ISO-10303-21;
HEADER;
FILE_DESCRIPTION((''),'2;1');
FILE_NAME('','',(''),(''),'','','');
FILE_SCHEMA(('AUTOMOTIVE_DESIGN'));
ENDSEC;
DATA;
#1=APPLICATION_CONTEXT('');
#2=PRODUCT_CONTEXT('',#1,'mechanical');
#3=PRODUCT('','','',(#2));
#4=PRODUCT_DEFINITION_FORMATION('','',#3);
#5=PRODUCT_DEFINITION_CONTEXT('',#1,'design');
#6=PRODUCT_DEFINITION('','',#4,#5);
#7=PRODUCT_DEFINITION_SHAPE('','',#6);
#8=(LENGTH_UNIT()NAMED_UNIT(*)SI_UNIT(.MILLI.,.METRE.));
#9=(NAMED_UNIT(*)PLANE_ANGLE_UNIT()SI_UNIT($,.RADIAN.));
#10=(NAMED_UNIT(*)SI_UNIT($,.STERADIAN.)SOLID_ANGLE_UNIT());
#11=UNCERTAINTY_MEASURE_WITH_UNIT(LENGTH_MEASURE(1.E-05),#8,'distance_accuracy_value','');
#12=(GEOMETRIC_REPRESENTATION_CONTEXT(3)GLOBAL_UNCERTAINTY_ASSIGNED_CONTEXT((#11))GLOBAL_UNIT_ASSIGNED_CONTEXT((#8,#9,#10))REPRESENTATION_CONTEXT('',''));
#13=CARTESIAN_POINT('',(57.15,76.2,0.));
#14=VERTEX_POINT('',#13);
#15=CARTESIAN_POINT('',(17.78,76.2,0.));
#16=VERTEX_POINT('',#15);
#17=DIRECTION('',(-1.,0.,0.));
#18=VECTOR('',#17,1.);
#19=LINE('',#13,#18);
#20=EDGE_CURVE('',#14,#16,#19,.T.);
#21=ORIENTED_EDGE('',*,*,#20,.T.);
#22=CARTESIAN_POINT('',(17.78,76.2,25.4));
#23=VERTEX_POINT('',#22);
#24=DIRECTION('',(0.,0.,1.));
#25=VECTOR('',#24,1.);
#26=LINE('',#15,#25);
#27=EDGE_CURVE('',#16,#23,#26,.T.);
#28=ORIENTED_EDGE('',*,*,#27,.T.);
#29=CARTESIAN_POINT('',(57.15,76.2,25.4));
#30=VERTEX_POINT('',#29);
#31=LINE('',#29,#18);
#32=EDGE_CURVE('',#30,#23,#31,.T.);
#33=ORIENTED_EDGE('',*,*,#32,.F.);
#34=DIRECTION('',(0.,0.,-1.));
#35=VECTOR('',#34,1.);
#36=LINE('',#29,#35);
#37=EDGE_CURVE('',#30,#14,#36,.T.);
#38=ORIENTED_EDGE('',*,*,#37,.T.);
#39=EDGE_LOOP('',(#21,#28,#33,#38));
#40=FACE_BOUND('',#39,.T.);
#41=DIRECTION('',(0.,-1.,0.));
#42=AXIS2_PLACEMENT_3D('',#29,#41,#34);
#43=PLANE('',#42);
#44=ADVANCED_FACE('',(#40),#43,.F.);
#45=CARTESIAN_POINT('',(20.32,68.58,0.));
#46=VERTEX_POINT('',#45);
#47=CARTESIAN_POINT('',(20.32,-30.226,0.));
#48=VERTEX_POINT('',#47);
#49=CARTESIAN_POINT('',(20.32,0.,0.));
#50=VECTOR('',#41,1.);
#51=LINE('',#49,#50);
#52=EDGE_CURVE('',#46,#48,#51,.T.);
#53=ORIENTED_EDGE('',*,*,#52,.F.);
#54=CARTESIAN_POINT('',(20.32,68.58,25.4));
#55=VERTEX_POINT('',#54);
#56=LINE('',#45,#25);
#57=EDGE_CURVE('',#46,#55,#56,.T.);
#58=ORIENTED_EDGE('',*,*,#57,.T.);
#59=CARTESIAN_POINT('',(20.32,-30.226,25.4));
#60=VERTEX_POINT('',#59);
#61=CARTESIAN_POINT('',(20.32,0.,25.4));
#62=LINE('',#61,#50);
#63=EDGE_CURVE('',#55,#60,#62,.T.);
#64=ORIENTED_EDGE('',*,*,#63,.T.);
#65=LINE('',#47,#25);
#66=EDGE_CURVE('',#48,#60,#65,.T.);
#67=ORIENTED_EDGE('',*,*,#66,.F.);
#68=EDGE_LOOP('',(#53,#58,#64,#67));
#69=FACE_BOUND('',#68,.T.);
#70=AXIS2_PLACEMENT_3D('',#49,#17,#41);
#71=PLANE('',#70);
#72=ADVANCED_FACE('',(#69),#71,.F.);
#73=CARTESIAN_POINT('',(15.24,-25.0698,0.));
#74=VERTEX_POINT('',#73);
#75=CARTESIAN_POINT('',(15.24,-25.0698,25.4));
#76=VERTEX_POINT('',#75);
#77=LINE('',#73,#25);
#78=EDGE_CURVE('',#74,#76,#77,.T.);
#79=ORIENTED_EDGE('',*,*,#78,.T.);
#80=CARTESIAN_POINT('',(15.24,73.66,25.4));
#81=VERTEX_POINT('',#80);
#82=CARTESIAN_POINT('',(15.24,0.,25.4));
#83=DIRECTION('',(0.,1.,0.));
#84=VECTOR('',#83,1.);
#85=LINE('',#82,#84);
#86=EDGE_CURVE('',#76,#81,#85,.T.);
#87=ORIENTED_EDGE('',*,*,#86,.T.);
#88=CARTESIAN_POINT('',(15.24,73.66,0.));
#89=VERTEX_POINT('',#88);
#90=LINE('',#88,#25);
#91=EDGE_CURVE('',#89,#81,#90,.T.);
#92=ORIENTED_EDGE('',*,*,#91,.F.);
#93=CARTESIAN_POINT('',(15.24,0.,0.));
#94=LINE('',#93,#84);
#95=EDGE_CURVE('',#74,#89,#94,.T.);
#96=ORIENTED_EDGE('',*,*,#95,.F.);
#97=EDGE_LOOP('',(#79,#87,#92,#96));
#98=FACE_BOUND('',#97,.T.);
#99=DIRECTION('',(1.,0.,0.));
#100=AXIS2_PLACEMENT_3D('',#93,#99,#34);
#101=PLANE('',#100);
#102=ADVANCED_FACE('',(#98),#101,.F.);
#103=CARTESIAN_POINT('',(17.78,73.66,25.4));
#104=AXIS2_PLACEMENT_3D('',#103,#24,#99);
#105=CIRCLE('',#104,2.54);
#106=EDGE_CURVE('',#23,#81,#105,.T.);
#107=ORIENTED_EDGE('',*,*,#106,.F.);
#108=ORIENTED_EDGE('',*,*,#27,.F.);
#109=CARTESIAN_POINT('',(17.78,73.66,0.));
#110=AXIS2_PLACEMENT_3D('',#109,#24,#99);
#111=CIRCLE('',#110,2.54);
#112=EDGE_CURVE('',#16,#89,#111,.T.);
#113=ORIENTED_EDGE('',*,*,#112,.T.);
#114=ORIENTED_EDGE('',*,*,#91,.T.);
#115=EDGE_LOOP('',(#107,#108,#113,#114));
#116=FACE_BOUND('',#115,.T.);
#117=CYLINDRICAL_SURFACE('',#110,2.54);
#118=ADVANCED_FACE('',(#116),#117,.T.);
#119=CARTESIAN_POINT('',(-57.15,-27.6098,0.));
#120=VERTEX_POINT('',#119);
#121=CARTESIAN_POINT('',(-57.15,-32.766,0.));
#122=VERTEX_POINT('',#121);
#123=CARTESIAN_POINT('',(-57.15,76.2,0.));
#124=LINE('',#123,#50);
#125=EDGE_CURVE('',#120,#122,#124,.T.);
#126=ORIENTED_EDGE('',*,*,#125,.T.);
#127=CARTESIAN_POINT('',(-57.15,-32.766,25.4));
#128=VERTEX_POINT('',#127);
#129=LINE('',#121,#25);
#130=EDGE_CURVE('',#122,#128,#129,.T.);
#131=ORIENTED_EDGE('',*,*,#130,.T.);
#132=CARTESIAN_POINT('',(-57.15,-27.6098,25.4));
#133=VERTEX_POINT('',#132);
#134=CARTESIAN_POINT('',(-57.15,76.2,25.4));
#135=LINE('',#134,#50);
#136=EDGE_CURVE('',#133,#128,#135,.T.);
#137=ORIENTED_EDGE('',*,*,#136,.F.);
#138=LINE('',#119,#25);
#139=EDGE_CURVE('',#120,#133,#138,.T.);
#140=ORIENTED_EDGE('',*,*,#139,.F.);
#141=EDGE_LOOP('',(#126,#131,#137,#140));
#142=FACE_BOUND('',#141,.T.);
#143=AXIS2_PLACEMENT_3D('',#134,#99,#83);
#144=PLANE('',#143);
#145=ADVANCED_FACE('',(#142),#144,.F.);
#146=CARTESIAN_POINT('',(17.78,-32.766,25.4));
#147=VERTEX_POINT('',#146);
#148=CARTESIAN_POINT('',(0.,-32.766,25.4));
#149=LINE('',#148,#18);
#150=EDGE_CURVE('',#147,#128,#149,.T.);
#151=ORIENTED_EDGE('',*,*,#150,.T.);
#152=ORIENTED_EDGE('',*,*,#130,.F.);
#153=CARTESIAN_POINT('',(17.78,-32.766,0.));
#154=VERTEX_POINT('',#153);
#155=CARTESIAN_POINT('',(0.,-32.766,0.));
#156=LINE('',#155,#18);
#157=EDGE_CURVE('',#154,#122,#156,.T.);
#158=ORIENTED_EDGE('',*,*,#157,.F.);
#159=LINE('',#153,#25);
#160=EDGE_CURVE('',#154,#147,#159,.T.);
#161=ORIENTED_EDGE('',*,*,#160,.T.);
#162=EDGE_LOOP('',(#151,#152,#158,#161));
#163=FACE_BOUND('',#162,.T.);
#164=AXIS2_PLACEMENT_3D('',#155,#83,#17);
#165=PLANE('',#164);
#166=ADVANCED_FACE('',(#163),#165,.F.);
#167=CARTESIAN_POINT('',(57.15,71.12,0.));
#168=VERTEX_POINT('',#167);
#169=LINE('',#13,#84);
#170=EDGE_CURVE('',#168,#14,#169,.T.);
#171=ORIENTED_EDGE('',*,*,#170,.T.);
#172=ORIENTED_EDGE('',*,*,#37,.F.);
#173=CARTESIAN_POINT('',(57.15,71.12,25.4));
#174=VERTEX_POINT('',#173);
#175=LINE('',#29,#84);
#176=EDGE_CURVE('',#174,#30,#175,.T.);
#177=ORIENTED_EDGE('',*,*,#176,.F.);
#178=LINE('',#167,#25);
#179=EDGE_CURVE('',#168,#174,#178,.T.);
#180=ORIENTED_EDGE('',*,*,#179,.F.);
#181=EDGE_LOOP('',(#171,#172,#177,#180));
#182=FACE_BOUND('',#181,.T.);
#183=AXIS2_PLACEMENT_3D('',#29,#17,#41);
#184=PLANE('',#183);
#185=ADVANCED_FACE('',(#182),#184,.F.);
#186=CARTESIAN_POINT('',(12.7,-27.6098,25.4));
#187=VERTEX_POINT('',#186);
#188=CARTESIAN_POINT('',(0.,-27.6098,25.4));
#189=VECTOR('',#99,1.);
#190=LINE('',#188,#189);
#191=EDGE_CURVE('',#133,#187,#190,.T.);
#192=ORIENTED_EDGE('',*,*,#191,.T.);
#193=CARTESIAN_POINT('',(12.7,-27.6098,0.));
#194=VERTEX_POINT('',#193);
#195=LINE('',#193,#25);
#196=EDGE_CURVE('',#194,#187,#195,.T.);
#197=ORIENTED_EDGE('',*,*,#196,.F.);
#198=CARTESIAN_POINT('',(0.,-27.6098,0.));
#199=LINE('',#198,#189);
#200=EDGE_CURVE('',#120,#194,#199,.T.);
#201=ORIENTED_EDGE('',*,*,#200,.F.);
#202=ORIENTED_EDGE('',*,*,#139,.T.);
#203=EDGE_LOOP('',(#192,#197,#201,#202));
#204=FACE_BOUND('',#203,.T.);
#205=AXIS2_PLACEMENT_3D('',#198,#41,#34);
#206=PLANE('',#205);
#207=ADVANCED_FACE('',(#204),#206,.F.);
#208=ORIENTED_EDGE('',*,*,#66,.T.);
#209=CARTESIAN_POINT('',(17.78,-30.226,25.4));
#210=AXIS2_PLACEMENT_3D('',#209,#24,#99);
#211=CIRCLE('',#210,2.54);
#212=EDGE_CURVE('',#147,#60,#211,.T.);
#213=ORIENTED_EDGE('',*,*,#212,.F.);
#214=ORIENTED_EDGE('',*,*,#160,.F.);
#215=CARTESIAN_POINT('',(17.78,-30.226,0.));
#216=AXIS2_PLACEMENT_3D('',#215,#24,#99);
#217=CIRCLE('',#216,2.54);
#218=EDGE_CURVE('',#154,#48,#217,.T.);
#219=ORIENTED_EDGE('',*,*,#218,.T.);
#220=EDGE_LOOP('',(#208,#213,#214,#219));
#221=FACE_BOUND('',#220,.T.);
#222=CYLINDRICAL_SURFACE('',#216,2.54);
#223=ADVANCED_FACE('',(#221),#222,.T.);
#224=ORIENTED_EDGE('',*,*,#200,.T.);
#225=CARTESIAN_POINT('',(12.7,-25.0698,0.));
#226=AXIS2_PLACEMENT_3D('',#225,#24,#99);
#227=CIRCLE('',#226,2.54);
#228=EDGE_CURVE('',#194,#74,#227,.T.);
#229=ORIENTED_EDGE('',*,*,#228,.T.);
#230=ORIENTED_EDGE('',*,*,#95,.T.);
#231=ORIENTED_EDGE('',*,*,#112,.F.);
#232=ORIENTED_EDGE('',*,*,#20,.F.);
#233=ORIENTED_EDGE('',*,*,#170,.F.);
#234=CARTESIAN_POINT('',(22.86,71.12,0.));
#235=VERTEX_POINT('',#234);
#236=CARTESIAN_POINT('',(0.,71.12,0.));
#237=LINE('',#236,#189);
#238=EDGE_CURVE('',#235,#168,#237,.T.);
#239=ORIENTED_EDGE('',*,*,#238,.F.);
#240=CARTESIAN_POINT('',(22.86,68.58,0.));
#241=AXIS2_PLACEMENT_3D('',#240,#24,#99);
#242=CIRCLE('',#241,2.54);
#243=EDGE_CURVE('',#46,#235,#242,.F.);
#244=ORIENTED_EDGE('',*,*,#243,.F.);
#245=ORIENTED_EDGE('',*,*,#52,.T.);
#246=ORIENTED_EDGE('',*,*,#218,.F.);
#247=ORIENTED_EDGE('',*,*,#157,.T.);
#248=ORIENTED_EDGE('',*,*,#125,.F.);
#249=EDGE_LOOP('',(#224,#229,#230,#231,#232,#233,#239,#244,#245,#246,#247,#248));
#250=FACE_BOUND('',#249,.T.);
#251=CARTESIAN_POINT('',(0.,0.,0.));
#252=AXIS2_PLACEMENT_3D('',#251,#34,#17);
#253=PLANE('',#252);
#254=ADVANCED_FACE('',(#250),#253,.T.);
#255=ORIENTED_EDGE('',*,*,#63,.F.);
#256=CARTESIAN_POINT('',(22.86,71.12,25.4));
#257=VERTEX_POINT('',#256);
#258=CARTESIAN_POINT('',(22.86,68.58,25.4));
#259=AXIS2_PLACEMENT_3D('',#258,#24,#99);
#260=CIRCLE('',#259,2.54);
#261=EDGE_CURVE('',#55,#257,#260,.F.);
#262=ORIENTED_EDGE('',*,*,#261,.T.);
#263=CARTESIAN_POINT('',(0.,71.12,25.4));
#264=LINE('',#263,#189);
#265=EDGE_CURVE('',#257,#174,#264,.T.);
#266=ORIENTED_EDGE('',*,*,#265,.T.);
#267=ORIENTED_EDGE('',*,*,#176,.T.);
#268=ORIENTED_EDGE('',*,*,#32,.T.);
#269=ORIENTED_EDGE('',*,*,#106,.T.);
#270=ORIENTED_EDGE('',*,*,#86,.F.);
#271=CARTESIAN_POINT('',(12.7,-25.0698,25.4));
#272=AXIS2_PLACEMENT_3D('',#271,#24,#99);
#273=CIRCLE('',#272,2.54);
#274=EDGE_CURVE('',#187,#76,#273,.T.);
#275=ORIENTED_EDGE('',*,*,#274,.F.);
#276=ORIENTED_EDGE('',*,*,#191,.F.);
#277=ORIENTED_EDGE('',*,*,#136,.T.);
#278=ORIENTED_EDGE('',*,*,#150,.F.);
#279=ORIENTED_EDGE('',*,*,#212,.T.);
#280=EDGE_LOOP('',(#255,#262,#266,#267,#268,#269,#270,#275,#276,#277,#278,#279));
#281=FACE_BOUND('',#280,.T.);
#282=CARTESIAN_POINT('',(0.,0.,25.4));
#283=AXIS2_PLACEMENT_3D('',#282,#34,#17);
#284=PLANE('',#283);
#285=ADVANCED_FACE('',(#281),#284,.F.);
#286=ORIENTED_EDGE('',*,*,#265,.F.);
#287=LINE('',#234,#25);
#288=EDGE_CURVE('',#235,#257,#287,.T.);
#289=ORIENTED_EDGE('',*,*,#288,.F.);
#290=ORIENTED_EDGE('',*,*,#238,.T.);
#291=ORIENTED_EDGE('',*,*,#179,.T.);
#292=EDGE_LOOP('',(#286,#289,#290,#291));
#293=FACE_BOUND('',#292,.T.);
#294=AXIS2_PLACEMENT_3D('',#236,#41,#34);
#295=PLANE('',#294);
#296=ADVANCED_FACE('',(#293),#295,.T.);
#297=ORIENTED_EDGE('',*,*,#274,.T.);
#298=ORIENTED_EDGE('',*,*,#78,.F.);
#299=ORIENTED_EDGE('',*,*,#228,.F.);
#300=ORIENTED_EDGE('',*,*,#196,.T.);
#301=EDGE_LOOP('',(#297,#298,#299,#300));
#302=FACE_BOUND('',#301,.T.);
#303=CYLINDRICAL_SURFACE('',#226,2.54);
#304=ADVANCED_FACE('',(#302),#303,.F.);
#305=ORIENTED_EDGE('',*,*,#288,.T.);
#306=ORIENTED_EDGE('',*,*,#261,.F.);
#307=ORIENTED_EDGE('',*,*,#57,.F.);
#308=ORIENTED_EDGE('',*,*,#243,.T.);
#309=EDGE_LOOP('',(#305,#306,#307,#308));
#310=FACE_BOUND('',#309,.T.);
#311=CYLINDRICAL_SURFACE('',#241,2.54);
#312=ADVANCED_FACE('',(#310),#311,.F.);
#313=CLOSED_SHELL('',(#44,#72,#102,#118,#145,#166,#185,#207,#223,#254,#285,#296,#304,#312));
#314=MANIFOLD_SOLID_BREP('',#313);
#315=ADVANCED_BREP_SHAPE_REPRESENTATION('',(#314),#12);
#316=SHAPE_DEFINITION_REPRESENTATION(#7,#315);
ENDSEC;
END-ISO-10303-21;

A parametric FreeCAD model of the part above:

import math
import FreeCAD as App
import Part
import Sketcher
Q = App.Units.Quantity


def add_polygon(sketch, points):
    """Adds a closed chain of lines whose ends are joined by coincident constraints."""
    first, n = sketch.GeometryCount, len(points)
    for a, b in zip(points, points[1:] + points[:1]):
        sketch.addGeometry(Part.LineSegment(App.Vector(*a, 0), App.Vector(*b, 0)), False)
    for i in range(n):
        sketch.addConstraint(Sketcher.Constraint("Coincident", first + i, 2, first + (i + 1) % n, 1))

doc = App.newDocument("Part")
params = doc.addObject("Spreadsheet::Sheet", "Params")
for row, (alias, value) in enumerate([
    ("sketch1_height", "6 in"),
    ("sketch1_width", "4.5 in"),
    ("pad1_length", "1 in"),
    ("sketch2_radius", "0.1 in"),
    ("sketch2_width", "4.5 in"),
    ("sketch2_height", "5.8 in"),
    ("sketch2_width2", "1.35 in"),
    ("sketch2_height2", "3.89 in"),
], start=1):
    params.set(f"A{row}", alias)
    params.set(f"B{row}", "=" + value)
    params.setAlias(f"B{row}", alias)

body = doc.addObject("PartDesign::Body", "Body")

sketch1 = body.newObject("Sketcher::SketchObject", "Sketch")
sketch1.AttachmentSupport = (doc.getObject("XY_Plane"), [""])
sketch1.MapMode = "FlatFace"
add_polygon(sketch1, [(-57, 76), (-57, -76), (57, -76), (57, 76)])
sketch1.addConstraint(Sketcher.Constraint("Vertical", 0))
sketch1.addConstraint(Sketcher.Constraint("Horizontal", 1))
sketch1.addConstraint(Sketcher.Constraint("Vertical", 2))
sketch1.addConstraint(Sketcher.Constraint("Horizontal", 3))
sketch1.addConstraint(Sketcher.Constraint("Symmetric", 0, 2, 2, 2, -1, 1))
sketch1.addConstraint(Sketcher.Constraint("DistanceY", 0, 2, 0, 1, Q("6 in")))
sketch1.addConstraint(Sketcher.Constraint("DistanceX", 1, 1, 1, 2, Q("4.5 in")))
sketch1.setExpression("Constraints[9]", "Params.sketch1_height")
sketch1.setExpression("Constraints[10]", "Params.sketch1_width")
pad1 = body.newObject("PartDesign::Pad", "Pad")
pad1.Profile = sketch1
pad1.setExpression("Length", "Params.pad1_length")

sketch2 = body.newObject("Sketcher::SketchObject", "Sketch001")
sketch2.AttachmentSupport = (doc.getObject("XY_Plane"), [""])
sketch2.MapMode = "FlatFace"
sketch2.AttachmentOffset = App.Placement(App.Vector(0, 0, 1 * 25.4), App.Rotation())
sketch2.addGeometry(Part.LineSegment(App.Vector(57.1, 71.1, 0), App.Vector(22.9, 71.1, 0)), False)
sketch2.addGeometry(Part.ArcOfCircle(Part.Circle(App.Vector(22.9, 68.6, 0), App.Vector(0, 0, 1), 2.5), math.radians(90), math.radians(180)), False)
sketch2.addGeometry(Part.LineSegment(App.Vector(20.3, 68.6, 0), App.Vector(20.3, -30.2, 0)), False)
sketch2.addGeometry(Part.ArcOfCircle(Part.Circle(App.Vector(17.8, -30.2, 0), App.Vector(0, 0, 1), 2.5), math.radians(-90), math.radians(0)), False)
sketch2.addGeometry(Part.LineSegment(App.Vector(17.8, -32.8, 0), App.Vector(-57.1, -32.8, 0)), False)
sketch2.addGeometry(Part.LineSegment(App.Vector(-57.1, -32.8, 0), App.Vector(-57.1, -76.2, 0)), False)
sketch2.addGeometry(Part.LineSegment(App.Vector(-57.1, -76.2, 0), App.Vector(57.1, -76.2, 0)), False)
sketch2.addGeometry(Part.LineSegment(App.Vector(57.1, -76.2, 0), App.Vector(57.1, 71.1, 0)), False)
sketch2.addGeometry(Part.ArcOfCircle(Part.Circle(App.Vector(17.8, 73.7, 0), App.Vector(0, 0, 1), 2.5), math.radians(90), math.radians(180)), False)
sketch2.addGeometry(Part.LineSegment(App.Vector(17.8, 76.2, 0), App.Vector(-57.1, 76.2, 0)), False)
sketch2.addGeometry(Part.LineSegment(App.Vector(-57.1, 76.2, 0), App.Vector(-57.1, -27.6, 0)), False)
sketch2.addGeometry(Part.LineSegment(App.Vector(-57.1, -27.6, 0), App.Vector(12.7, -27.6, 0)), False)
sketch2.addGeometry(Part.ArcOfCircle(Part.Circle(App.Vector(12.7, -25.1, 0), App.Vector(0, 0, 1), 2.5), math.radians(-90), math.radians(0)), False)
sketch2.addGeometry(Part.LineSegment(App.Vector(15.2, -25.1, 0), App.Vector(15.2, 73.7, 0)), False)
sketch2.addConstraint(Sketcher.Constraint("Tangent", 0, 2, 1, 1))
sketch2.addConstraint(Sketcher.Constraint("Tangent", 1, 2, 2, 1))
sketch2.addConstraint(Sketcher.Constraint("Tangent", 2, 2, 3, 2))
sketch2.addConstraint(Sketcher.Constraint("Tangent", 3, 1, 4, 1))
sketch2.addConstraint(Sketcher.Constraint("Coincident", 4, 2, 5, 1))
sketch2.addConstraint(Sketcher.Constraint("Coincident", 5, 2, 6, 1))
sketch2.addConstraint(Sketcher.Constraint("Coincident", 6, 2, 7, 1))
sketch2.addConstraint(Sketcher.Constraint("Coincident", 7, 2, 0, 1))
sketch2.addConstraint(Sketcher.Constraint("Tangent", 8, 1, 9, 1))
sketch2.addConstraint(Sketcher.Constraint("Coincident", 9, 2, 10, 1))
sketch2.addConstraint(Sketcher.Constraint("Coincident", 10, 2, 11, 1))
sketch2.addConstraint(Sketcher.Constraint("Tangent", 11, 2, 12, 1))
sketch2.addConstraint(Sketcher.Constraint("Tangent", 12, 2, 13, 1))
sketch2.addConstraint(Sketcher.Constraint("Tangent", 13, 2, 8, 2))
sketch2.addConstraint(Sketcher.Constraint("Horizontal", 0))
sketch2.addConstraint(Sketcher.Constraint("Vertical", 2))
sketch2.addConstraint(Sketcher.Constraint("Horizontal", 4))
sketch2.addConstraint(Sketcher.Constraint("Vertical", 5))
sketch2.addConstraint(Sketcher.Constraint("Horizontal", 6))
sketch2.addConstraint(Sketcher.Constraint("Vertical", 7))
sketch2.addConstraint(Sketcher.Constraint("Horizontal", 9))
sketch2.addConstraint(Sketcher.Constraint("Vertical", 10))
sketch2.addConstraint(Sketcher.Constraint("Horizontal", 11))
sketch2.addConstraint(Sketcher.Constraint("Vertical", 13))
sketch2.addConstraint(Sketcher.Constraint("Equal", 1, 3))
sketch2.addConstraint(Sketcher.Constraint("Equal", 3, 8))
sketch2.addConstraint(Sketcher.Constraint("Equal", 8, 12))
sketch2.addConstraint(Sketcher.Constraint("Symmetric", 6, 2, 9, 2, -1, 1))
sketch2.addConstraint(Sketcher.Constraint("Vertical", 3, 3, 8, 3))
sketch2.addConstraint(Sketcher.Constraint("Vertical", 5, 2, 9, 2))
sketch2.addConstraint(Sketcher.Constraint("Radius", 1, Q("0.1 in")))
sketch2.addConstraint(Sketcher.Constraint("DistanceX", 6, 1, 6, 2, Q("4.5 in")))
sketch2.addConstraint(Sketcher.Constraint("DistanceY", 7, 1, 7, 2, Q("5.8 in")))
sketch2.addConstraint(Sketcher.Constraint("DistanceY", 5, 2, -1, 1, Q("3 in")))
sketch2.addConstraint(Sketcher.Constraint("DistanceX", 0, 2, 0, 1, Q("1.35 in")))
sketch2.addConstraint(Sketcher.Constraint("DistanceY", 2, 2, 2, 1, Q("3.89 in")))
sketch2.addConstraint(Sketcher.Constraint("DistanceY", 10, 2, 10, 1, Q("4.087 in")))
sketch2.setExpression("Constraints[30]", "Params.sketch2_radius")
sketch2.setExpression("Constraints[31]", "Params.sketch2_width")
sketch2.setExpression("Constraints[32]", "Params.sketch2_height")
sketch2.setExpression("Constraints[34]", "Params.sketch2_width2")
sketch2.setExpression("Constraints[35]", "Params.sketch2_height2")
pocket1 = body.newObject("PartDesign::Pocket", "Pocket")
pocket1.Profile = sketch2
pocket1.Type = "ThroughAll"

doc.recompute()
